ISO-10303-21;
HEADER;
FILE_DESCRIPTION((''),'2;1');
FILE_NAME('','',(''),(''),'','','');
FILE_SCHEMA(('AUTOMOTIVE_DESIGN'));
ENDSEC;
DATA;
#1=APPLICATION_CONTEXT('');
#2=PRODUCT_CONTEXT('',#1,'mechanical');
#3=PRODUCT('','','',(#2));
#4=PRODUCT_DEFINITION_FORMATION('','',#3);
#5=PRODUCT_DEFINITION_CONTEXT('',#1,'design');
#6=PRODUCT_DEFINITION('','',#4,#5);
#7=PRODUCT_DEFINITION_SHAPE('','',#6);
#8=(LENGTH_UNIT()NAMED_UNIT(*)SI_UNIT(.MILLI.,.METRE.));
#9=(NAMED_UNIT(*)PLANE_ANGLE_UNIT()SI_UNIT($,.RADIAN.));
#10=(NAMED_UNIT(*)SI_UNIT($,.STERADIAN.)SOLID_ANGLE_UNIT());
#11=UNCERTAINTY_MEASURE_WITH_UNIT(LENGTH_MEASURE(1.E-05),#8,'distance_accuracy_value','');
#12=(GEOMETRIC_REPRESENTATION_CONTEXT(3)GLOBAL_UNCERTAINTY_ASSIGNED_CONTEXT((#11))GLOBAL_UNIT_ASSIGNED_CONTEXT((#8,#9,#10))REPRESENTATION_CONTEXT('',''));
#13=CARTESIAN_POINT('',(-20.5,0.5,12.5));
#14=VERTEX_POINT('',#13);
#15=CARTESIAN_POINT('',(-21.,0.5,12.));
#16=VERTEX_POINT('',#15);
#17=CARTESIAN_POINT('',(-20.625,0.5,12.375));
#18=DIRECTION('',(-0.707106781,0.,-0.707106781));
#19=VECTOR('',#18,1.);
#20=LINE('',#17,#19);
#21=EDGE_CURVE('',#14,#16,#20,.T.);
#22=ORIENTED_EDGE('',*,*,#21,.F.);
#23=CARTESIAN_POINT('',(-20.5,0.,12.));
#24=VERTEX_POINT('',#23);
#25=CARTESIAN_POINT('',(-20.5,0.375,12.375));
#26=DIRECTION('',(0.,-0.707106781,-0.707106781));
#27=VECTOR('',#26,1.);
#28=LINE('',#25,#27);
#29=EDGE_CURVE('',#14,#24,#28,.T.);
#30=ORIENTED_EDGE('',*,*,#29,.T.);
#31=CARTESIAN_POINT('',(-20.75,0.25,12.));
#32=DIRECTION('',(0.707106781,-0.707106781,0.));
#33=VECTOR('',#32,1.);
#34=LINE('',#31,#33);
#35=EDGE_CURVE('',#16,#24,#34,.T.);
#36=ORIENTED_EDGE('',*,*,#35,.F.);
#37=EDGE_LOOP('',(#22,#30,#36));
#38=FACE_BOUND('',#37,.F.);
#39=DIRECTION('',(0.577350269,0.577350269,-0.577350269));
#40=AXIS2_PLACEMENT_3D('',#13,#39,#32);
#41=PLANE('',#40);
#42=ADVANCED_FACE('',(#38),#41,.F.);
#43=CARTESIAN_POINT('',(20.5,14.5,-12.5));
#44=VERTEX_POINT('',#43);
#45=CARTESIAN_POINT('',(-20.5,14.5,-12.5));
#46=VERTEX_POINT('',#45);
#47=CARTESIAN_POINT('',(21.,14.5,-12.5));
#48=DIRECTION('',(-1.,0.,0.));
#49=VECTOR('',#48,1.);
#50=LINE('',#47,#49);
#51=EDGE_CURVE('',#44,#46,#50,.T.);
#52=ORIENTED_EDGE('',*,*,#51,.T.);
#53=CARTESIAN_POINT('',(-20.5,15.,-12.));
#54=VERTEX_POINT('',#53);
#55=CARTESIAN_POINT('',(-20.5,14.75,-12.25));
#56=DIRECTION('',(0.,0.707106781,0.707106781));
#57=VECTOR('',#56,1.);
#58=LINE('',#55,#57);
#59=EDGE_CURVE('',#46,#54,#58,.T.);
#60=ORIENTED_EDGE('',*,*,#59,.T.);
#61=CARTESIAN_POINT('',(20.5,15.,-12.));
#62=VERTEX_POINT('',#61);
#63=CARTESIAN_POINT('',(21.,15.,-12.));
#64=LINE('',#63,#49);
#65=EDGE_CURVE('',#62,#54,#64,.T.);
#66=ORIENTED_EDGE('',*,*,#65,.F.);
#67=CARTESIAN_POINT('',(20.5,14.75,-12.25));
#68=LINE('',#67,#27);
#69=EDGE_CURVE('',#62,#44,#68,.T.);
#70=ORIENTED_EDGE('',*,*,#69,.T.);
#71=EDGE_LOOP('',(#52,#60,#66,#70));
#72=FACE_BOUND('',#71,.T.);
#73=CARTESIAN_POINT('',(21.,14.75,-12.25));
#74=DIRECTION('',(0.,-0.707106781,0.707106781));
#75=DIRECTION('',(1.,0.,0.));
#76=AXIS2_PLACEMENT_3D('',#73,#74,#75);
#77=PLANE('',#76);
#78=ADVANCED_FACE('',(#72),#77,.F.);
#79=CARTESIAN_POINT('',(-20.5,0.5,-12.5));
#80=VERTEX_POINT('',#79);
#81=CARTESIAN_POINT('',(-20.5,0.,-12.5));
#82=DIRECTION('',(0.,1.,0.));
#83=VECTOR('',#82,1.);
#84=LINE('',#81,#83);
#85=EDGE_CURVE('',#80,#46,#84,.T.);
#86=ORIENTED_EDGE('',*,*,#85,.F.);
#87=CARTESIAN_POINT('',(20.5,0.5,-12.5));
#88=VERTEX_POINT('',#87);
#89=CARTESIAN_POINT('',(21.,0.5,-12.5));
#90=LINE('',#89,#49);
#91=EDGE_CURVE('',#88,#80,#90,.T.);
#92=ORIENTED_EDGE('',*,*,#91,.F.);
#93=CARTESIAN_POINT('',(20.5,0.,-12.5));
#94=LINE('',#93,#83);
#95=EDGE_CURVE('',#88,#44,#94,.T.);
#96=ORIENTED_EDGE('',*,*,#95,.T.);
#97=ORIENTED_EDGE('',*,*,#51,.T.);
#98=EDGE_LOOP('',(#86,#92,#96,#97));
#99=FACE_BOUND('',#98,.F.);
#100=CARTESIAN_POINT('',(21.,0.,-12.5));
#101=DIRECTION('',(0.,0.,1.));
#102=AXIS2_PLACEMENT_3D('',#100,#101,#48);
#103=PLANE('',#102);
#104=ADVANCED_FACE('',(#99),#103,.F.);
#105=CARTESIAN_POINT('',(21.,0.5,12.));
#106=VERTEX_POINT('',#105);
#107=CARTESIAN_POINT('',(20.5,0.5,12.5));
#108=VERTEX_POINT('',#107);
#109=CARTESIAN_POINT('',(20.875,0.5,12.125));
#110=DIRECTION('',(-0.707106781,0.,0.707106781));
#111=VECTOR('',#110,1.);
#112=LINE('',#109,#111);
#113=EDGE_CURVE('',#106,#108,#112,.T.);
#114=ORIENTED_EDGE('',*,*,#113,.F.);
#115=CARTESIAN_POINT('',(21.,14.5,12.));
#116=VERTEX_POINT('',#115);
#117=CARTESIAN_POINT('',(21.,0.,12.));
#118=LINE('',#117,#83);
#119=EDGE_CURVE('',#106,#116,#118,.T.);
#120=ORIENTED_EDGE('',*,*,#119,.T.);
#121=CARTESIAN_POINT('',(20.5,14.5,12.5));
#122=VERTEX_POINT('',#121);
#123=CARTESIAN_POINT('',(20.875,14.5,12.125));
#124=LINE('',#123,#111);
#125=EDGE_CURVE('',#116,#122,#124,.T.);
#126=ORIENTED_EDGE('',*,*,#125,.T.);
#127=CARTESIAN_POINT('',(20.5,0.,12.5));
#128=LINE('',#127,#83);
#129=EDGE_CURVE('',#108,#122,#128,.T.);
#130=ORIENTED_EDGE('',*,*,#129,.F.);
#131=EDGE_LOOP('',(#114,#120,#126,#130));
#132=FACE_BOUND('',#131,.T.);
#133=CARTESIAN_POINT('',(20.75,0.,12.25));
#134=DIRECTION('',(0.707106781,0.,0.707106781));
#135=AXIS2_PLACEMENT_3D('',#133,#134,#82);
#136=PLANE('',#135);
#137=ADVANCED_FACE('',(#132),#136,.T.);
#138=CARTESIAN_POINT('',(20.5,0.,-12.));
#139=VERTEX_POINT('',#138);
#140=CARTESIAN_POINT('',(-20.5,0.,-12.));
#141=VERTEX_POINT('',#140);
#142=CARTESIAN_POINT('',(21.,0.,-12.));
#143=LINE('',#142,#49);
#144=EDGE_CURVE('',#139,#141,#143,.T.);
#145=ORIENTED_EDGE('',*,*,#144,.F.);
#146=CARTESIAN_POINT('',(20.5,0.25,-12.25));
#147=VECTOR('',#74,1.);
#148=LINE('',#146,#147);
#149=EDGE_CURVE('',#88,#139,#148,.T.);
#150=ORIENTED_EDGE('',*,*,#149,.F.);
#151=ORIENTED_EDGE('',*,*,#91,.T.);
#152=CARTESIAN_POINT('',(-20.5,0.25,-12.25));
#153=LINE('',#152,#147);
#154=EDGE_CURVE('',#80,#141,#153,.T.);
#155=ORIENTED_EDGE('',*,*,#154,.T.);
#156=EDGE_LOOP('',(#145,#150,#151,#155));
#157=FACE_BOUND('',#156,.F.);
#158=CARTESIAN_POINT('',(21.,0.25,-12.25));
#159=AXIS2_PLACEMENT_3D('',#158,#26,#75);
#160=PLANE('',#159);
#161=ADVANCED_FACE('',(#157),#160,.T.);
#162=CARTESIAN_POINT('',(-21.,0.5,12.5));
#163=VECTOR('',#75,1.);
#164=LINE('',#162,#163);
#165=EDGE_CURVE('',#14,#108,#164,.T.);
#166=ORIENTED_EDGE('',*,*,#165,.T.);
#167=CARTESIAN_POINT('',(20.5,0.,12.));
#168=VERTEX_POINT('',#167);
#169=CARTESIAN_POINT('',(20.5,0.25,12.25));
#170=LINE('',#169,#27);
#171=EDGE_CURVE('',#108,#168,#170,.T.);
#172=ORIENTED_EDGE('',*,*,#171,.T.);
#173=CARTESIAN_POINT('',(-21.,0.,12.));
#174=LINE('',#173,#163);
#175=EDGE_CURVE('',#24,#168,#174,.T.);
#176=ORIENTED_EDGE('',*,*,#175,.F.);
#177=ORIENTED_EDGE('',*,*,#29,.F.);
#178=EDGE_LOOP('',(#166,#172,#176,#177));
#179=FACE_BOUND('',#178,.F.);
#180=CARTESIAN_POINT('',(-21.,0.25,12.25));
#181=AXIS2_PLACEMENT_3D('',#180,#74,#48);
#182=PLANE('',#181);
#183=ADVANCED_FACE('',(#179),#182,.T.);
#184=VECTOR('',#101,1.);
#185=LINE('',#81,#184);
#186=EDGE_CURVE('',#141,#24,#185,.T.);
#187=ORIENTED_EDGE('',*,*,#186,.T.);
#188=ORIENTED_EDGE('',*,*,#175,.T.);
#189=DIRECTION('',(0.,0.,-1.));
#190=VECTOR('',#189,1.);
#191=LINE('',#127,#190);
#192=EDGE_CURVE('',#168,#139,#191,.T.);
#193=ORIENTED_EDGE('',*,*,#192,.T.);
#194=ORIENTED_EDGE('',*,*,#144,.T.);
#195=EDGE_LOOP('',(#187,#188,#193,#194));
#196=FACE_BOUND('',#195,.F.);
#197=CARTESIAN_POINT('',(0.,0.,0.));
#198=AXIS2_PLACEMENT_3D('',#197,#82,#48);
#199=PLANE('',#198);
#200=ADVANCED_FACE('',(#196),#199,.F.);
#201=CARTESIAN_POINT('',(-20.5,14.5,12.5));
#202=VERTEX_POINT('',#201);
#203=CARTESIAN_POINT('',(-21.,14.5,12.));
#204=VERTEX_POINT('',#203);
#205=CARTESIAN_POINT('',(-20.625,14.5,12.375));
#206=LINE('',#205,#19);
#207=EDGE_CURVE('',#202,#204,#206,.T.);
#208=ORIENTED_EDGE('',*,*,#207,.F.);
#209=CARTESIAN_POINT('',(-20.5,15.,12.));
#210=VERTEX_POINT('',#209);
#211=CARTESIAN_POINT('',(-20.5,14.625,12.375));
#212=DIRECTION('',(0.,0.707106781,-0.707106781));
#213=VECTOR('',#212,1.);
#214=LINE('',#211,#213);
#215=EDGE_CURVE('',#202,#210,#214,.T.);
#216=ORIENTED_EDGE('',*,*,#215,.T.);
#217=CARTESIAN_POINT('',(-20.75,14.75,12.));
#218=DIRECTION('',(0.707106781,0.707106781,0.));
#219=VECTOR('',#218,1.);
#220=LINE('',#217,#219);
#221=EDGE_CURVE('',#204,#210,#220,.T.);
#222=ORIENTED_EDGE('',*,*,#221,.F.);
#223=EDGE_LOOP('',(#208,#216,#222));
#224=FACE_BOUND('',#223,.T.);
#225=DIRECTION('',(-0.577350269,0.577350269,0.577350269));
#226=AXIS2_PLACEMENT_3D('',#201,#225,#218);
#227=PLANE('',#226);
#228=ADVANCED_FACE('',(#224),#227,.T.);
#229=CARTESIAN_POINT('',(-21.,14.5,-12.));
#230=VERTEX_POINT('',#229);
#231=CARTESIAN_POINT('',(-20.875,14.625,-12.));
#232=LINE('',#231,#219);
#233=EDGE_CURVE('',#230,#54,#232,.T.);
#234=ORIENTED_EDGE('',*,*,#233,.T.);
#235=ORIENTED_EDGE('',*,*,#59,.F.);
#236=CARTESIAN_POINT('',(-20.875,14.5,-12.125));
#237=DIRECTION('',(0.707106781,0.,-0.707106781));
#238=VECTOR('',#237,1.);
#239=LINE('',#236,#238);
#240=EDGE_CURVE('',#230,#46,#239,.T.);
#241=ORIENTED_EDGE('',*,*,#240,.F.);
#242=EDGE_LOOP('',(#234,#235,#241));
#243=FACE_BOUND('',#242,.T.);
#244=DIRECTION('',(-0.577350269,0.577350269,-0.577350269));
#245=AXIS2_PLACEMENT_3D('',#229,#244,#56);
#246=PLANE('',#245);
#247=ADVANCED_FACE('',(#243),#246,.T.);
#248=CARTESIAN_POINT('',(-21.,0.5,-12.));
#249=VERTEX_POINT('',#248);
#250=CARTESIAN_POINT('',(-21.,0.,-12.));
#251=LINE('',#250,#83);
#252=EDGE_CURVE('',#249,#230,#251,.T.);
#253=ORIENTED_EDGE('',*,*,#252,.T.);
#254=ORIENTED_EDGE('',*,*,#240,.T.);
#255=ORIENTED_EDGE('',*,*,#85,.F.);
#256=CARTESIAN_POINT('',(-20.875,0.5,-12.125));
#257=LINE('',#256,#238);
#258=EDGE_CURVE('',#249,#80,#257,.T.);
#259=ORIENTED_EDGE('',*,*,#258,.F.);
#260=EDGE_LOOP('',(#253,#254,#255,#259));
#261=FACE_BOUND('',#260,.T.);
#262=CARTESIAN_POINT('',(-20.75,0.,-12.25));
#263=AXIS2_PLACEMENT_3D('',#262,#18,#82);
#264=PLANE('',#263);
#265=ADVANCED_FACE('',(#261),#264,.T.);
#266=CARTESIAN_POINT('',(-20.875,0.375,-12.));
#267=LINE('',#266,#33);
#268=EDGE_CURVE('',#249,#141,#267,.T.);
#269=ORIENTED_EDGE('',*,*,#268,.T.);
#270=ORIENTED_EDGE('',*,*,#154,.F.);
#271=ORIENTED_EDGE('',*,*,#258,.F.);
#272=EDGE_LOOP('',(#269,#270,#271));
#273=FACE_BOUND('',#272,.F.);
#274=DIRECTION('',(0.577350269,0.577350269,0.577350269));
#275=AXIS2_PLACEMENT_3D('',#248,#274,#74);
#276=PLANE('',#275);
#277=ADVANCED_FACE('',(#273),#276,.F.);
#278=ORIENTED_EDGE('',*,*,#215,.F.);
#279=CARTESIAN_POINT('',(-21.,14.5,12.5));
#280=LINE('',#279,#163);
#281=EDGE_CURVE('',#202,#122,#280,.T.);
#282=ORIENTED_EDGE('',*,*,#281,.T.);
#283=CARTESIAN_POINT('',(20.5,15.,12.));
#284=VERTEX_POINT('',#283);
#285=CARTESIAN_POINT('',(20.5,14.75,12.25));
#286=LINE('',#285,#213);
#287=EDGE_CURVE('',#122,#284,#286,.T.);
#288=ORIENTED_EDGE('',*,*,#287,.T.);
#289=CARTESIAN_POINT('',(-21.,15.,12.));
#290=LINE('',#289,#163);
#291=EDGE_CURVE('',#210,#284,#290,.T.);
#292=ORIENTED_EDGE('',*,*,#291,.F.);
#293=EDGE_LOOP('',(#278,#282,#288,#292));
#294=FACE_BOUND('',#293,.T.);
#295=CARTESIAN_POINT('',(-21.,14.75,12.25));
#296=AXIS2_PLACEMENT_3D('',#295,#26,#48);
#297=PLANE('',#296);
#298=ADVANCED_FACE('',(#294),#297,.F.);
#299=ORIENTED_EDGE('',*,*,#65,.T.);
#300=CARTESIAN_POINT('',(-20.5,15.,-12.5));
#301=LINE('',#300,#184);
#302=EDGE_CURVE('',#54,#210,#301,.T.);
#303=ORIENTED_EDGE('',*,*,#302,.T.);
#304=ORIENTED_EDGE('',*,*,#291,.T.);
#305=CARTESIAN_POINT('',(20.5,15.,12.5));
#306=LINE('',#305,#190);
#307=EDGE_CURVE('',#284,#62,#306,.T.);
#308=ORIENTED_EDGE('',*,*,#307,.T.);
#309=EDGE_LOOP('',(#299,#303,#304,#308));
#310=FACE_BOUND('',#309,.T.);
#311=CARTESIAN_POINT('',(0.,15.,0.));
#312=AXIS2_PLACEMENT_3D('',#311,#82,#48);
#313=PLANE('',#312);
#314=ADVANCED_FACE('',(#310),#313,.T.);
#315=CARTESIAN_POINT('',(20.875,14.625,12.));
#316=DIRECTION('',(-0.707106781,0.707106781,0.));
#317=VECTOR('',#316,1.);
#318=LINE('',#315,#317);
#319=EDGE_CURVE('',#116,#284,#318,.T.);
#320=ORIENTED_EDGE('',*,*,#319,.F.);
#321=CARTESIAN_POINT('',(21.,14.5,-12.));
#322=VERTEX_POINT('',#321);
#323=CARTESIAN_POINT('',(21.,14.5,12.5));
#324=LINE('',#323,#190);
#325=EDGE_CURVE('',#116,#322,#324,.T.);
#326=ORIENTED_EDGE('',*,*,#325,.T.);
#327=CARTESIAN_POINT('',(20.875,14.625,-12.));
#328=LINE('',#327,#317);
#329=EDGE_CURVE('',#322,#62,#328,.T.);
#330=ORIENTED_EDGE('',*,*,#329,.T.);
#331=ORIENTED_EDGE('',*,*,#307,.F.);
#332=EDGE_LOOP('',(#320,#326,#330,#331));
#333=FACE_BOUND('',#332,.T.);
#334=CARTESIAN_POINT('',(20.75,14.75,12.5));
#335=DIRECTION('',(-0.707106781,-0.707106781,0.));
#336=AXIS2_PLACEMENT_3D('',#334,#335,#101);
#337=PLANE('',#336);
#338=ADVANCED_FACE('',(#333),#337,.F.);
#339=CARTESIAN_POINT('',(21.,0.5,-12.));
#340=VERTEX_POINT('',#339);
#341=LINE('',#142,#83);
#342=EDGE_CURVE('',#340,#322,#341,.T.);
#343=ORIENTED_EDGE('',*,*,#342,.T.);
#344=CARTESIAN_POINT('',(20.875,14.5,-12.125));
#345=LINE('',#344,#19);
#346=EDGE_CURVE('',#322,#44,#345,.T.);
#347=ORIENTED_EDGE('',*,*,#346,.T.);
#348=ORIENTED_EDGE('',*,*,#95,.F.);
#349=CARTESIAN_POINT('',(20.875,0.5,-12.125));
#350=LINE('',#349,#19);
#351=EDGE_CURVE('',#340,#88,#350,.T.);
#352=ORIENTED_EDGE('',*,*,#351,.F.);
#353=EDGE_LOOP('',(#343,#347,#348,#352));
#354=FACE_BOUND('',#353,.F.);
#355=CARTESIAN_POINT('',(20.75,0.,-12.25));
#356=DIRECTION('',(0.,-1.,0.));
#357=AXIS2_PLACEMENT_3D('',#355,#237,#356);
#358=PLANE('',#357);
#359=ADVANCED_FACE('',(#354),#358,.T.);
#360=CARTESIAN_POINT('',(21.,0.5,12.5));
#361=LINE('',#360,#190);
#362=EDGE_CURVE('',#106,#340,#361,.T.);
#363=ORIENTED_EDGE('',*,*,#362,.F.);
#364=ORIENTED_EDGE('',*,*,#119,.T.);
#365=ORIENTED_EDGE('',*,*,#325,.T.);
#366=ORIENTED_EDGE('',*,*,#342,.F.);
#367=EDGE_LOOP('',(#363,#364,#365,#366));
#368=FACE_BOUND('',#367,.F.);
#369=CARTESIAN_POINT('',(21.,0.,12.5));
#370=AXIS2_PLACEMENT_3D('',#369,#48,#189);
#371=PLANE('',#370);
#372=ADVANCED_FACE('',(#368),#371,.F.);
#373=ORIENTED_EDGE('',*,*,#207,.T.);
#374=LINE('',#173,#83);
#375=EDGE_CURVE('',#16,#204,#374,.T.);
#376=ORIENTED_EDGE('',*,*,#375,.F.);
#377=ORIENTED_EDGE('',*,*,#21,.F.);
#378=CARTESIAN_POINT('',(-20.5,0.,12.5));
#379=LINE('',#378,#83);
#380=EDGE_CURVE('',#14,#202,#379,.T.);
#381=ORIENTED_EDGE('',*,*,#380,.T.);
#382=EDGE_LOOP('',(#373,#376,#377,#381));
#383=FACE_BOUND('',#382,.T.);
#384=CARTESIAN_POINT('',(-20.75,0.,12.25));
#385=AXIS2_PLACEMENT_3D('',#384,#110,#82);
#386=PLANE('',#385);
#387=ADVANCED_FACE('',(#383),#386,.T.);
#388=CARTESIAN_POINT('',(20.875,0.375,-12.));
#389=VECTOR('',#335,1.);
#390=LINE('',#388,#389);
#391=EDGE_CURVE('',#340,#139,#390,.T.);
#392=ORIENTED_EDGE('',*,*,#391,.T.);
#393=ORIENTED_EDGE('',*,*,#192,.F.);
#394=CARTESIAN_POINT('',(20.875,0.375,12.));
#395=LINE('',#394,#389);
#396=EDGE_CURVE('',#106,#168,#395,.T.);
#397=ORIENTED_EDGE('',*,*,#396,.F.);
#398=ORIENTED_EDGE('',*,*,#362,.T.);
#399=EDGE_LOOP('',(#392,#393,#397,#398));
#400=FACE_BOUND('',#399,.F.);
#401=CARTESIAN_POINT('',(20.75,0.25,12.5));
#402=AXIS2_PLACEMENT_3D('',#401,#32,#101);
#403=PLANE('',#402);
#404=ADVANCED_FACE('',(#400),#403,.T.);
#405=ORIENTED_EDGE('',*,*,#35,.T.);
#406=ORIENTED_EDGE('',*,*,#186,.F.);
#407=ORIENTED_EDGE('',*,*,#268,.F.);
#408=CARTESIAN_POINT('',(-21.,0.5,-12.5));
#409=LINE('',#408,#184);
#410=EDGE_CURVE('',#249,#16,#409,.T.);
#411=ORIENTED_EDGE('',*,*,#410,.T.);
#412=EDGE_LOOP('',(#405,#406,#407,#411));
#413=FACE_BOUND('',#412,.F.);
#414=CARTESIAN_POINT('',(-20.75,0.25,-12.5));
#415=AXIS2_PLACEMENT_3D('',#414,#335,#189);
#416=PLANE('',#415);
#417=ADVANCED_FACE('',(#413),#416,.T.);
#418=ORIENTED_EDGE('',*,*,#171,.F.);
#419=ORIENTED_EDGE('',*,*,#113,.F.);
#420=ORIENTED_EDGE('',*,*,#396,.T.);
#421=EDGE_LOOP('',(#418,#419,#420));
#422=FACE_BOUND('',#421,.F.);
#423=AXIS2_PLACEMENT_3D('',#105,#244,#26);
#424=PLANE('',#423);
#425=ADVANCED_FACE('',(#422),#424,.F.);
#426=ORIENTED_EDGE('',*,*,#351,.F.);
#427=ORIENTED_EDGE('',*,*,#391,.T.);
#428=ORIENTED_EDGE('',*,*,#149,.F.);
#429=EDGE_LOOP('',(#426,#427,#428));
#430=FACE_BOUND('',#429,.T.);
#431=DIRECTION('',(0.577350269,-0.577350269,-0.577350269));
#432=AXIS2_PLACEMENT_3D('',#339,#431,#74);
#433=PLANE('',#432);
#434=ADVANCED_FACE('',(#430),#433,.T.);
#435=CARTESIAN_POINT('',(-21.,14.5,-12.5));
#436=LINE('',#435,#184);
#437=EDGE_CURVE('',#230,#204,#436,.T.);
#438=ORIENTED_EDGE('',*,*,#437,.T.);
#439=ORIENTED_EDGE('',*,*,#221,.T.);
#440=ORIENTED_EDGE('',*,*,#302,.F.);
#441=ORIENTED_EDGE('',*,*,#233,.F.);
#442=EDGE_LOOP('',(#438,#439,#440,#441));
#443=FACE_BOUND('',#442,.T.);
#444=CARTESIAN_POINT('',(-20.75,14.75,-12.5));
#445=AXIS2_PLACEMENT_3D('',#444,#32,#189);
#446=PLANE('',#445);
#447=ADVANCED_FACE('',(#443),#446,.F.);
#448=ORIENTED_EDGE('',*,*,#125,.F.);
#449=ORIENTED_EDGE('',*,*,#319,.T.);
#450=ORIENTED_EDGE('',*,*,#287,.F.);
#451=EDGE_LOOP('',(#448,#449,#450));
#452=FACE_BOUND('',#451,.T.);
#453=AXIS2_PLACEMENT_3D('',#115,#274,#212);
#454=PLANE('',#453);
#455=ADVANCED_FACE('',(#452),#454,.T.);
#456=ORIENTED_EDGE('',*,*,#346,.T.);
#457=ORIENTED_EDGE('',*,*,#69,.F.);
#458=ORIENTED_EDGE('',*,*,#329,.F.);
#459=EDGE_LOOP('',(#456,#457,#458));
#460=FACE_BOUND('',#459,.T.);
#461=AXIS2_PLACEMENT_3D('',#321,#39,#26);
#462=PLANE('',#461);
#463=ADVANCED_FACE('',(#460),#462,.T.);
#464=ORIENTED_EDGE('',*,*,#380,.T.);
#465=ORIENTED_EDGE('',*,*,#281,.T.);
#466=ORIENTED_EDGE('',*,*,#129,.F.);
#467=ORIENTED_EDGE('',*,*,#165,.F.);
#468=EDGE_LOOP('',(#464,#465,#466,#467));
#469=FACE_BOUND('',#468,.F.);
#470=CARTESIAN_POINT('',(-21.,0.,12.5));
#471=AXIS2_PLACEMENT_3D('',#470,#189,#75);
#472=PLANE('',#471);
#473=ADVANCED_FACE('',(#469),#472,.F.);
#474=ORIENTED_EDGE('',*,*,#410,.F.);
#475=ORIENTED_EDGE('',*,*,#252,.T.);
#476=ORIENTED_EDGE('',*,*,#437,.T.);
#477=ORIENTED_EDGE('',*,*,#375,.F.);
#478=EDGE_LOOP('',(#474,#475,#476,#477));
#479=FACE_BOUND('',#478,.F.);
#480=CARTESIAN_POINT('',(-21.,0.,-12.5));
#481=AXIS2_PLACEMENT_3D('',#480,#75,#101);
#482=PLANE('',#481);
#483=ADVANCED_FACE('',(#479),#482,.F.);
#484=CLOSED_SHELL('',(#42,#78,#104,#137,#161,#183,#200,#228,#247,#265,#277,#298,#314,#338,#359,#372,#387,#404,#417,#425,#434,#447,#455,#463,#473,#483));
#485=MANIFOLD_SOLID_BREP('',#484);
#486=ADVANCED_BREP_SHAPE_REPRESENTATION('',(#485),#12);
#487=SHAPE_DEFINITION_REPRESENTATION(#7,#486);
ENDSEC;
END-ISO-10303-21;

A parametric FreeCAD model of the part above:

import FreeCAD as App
import Part
import Sketcher

doc = App.newDocument("Part")
body = doc.addObject("PartDesign::Body", "Body")

sketch1 = body.newObject("Sketcher::SketchObject", "Sketch")
sketch1.AttachmentSupport = (doc.getObject("XZ_Plane"), [""])
sketch1.MapMode = "FlatFace"
sketch1.addGeometry([
    Part.LineSegment(App.Vector(21, 12.5, 0), App.Vector(21, -12.5, 0)),
    Part.LineSegment(App.Vector(21, -12.5, 0), App.Vector(-21, -12.5, 0)),
    Part.LineSegment(App.Vector(-21, -12.5, 0), App.Vector(-21, 12.5, 0)),
    Part.LineSegment(App.Vector(-21, 12.5, 0), App.Vector(21, 12.5, 0)),
], False)
sketch1.addConstraint([
    Sketcher.Constraint("Coincident", 0, 2, 1, 1),
    Sketcher.Constraint("Coincident", 1, 2, 2, 1),
    Sketcher.Constraint("Coincident", 2, 2, 3, 1),
    Sketcher.Constraint("Coincident", 3, 2, 0, 1),
    Sketcher.Constraint("Vertical", 0),
    Sketcher.Constraint("Horizontal", 1),
    Sketcher.Constraint("Vertical", 2),
    Sketcher.Constraint("Horizontal", 3),
    Sketcher.Constraint("Symmetric", 0, 2, 2, 2, -1, 1),
    Sketcher.Constraint("DistanceX", 1, 2, 1, 1, 42.0),
    Sketcher.Constraint("DistanceY", 0, 2, 0, 1, 25.0),
])
pad1 = body.newObject("PartDesign::Pad", "Pad")
pad1.Profile = sketch1
pad1.Length = 15
pad1.Reversed = True
doc.recompute()

chamfer = body.newObject("PartDesign::Chamfer", "Chamfer")
chamfer.Base = (pad1, ["Edge1"])
chamfer.UseAllEdges = True
chamfer.Size = 0.5

doc.recompute()
